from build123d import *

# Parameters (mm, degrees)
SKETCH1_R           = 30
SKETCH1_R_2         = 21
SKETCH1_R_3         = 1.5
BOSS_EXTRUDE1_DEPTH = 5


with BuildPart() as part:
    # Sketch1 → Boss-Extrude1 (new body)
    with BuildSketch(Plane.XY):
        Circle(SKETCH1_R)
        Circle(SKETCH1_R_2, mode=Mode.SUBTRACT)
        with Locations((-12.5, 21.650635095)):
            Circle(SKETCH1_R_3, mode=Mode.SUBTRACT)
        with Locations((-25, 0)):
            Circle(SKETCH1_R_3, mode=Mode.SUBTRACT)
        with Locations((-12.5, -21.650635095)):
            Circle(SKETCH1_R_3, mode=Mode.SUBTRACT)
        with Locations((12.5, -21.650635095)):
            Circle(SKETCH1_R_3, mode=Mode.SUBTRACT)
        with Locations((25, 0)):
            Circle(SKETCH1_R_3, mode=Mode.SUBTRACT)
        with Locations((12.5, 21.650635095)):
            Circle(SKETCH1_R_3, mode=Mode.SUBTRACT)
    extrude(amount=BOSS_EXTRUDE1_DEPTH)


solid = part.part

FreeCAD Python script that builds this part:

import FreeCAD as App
import Part
import Sketcher
from FreeCAD import Vector
Q = App.Units.Quantity

doc = App.newDocument("Part")
body = doc.addObject("PartDesign::Body", "Body")

# Sketch on XY plane
sketch1 = body.newObject("Sketcher::SketchObject", "Sketch")
sketch1.AttachmentSupport = (doc.getObject("XY_Plane"), [""])
sketch1.MapMode = "FlatFace"
sketch1.addGeometry(Part.Circle(Vector(0, 0, 0), Vector(0, 0, 1), 30), False)
sketch1.addGeometry(Part.Circle(Vector(-12.5, -21.7, 0), Vector(0, 0, 1), 1.5), False)
sketch1.addGeometry(Part.Circle(Vector(12.5, -21.7, 0), Vector(0, 0, 1), 1.5), False)
sketch1.addGeometry(Part.Circle(Vector(-25, 0, 0), Vector(0, 0, 1), 1.5), False)
sketch1.addGeometry(Part.Circle(Vector(-12.5, 21.7, 0), Vector(0, 0, 1), 1.5), False)
sketch1.addGeometry(Part.Circle(Vector(0, 0, 0), Vector(0, 0, 1), 21), False)
sketch1.addGeometry(Part.Circle(Vector(25, 0, 0), Vector(0, 0, 1), 1.5), False)
sketch1.addGeometry(Part.Circle(Vector(12.5, 21.7, 0), Vector(0, 0, 1), 1.5), False)
sketch1.addConstraint(Sketcher.Constraint("Coincident", 0, 3, -1, 1))
sketch1.addConstraint(Sketcher.Constraint("Coincident", 5, 3, -1, 1))
sketch1.addConstraint(Sketcher.Constraint("Equal", 1, 2))
sketch1.addConstraint(Sketcher.Constraint("Equal", 2, 3))
sketch1.addConstraint(Sketcher.Constraint("Equal", 3, 4))
sketch1.addConstraint(Sketcher.Constraint("Equal", 4, 6))
sketch1.addConstraint(Sketcher.Constraint("Equal", 6, 7))
sketch1.addConstraint(Sketcher.Constraint("Symmetric", 2, 3, 4, 3, -1, 1))
sketch1.addConstraint(Sketcher.Constraint("Symmetric", 3, 3, 6, 3, -1, 1))
sketch1.addConstraint(Sketcher.Constraint("Symmetric", 1, 3, 7, 3, -1, 1))
sketch1.addConstraint(Sketcher.Constraint("Symmetric", 1, 3, 2, 3, -2))
sketch1.addConstraint(Sketcher.Constraint("PointOnObject", 3, 3, -1))
sketch1.addConstraint(Sketcher.Constraint("Diameter", 0, Q("60 mm")))
sketch1.addConstraint(Sketcher.Constraint("Diameter", 1, Q("3 mm")))
sketch1.addConstraint(Sketcher.Constraint("Diameter", 5, Q("42 mm")))
sketch1.addConstraint(Sketcher.Constraint("DistanceX", 3, 3, -1, 1, Q("25 mm")))
sketch1.addConstraint(Sketcher.Constraint("DistanceX", 1, 3, 2, 3, Q("25 mm")))
sketch1.addConstraint(Sketcher.Constraint("DistanceY", 1, 3, 4, 3, Q("43.30127 mm")))
pad1 = body.newObject("PartDesign::Pad", "Pad")
pad1.Profile = sketch1
pad1.Length = 5

doc.recompute()
